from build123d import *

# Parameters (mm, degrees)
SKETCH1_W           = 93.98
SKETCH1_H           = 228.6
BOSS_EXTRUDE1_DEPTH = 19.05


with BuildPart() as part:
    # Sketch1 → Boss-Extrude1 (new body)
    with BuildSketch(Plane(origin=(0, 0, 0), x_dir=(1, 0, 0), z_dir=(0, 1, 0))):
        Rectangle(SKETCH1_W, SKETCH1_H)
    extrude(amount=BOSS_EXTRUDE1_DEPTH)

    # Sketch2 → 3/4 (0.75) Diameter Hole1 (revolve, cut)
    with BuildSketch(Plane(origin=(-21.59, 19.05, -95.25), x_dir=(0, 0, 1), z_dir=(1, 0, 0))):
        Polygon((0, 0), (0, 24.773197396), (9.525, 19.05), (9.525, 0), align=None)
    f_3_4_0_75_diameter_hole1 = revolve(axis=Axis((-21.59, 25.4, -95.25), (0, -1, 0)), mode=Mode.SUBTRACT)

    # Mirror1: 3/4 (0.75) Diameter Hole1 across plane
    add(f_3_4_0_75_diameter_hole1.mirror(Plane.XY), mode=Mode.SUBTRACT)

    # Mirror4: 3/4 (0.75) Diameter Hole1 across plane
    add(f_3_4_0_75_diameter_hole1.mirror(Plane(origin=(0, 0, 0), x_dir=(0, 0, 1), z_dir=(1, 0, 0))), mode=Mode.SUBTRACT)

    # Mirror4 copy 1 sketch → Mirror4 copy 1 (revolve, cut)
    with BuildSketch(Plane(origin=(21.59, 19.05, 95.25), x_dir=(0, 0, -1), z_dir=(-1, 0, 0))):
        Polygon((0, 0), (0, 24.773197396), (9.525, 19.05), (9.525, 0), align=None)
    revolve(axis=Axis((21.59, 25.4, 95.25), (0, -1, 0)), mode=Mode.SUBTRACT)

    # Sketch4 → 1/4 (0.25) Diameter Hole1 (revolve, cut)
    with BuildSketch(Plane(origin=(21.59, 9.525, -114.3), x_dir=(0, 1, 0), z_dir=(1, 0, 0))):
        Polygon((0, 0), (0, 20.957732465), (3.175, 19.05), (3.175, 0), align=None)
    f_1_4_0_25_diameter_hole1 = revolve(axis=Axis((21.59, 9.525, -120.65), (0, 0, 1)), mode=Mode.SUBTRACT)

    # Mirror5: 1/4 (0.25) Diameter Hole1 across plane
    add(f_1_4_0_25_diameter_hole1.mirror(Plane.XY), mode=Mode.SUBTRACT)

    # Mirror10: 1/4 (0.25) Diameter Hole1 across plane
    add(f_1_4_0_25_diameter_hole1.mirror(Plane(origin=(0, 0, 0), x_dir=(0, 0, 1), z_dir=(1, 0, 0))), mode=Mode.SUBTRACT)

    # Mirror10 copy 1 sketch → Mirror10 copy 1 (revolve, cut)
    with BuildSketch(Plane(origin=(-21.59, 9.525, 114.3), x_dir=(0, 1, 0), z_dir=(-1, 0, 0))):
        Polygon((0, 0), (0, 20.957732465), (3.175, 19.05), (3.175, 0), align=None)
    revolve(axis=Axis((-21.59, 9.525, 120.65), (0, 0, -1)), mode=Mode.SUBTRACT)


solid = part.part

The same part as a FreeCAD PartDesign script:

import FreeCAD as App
import Part
import Sketcher
Q = App.Units.Quantity

doc = App.newDocument("Part")
body = doc.addObject("PartDesign::Body", "Body")

# Sketch on XZ plane
sketch1 = body.newObject("Sketcher::SketchObject", "Sketch")
sketch1.AttachmentSupport = (doc.getObject("XZ_Plane"), [""])
sketch1.MapMode = "FlatFace"
sketch1.addGeometry(Part.LineSegment(App.Vector(-47, -114, 0), App.Vector(-47, 114, 0)), False)
sketch1.addGeometry(Part.LineSegment(App.Vector(-47, 114, 0), App.Vector(47, 114, 0)), False)
sketch1.addGeometry(Part.LineSegment(App.Vector(47, 114, 0), App.Vector(47, -114, 0)), False)
sketch1.addGeometry(Part.LineSegment(App.Vector(47, -114, 0), App.Vector(-47, -114, 0)), False)
sketch1.addConstraint(Sketcher.Constraint("Coincident", 0, 2, 1, 1))
sketch1.addConstraint(Sketcher.Constraint("Coincident", 1, 2, 2, 1))
sketch1.addConstraint(Sketcher.Constraint("Coincident", 2, 2, 3, 1))
sketch1.addConstraint(Sketcher.Constraint("Coincident", 3, 2, 0, 1))
sketch1.addConstraint(Sketcher.Constraint("Vertical", 0))
sketch1.addConstraint(Sketcher.Constraint("Horizontal", 1))
sketch1.addConstraint(Sketcher.Constraint("Vertical", 2))
sketch1.addConstraint(Sketcher.Constraint("Horizontal", 3))
sketch1.addConstraint(Sketcher.Constraint("Symmetric", 0, 2, 2, 2, -1, 1))
sketch1.addConstraint(Sketcher.Constraint("DistanceY", 0, 1, 0, 2, Q("9 in")))
sketch1.addConstraint(Sketcher.Constraint("DistanceX", 1, 1, 1, 2, Q("3.7 in")))
pad1 = body.newObject("PartDesign::Pad", "Pad")
pad1.Profile = sketch1
pad1.Length = Q("0.75 in")
pad1.Reversed = True

# Sketch on YZ plane
sketch2 = body.newObject("Sketcher::SketchObject", "Sketch001")
sketch2.AttachmentSupport = (doc.getObject("YZ_Plane"), [""])
sketch2.MapMode = "FlatFace"
sketch2.AttachmentOffset = App.Placement(App.Vector(0, 0, -0.85 * 25.4), App.Rotation())
sketch2.addGeometry(Part.LineSegment(App.Vector(-6, -95, 0), App.Vector(19, -95, 0)), False)
sketch2.addGeometry(Part.LineSegment(App.Vector(19, -95, 0), App.Vector(19, -86, 0)), False)
sketch2.addGeometry(Part.LineSegment(App.Vector(19, -86, 0), App.Vector(0, -86, 0)), False)
sketch2.addGeometry(Part.LineSegment(App.Vector(0, -86, 0), App.Vector(-6, -95, 0)), False)
sketch2.addGeometry(Part.LineSegment(App.Vector(19, -95, 0), App.Vector(-6, -95, 0)), True)  # axis
sketch2.addConstraint(Sketcher.Constraint("Coincident", 0, 2, 1, 1))
sketch2.addConstraint(Sketcher.Constraint("Coincident", 1, 2, 2, 1))
sketch2.addConstraint(Sketcher.Constraint("Coincident", 2, 2, 3, 1))
sketch2.addConstraint(Sketcher.Constraint("Coincident", 3, 2, 0, 1))
sketch2.addConstraint(Sketcher.Constraint("Horizontal", 0))
sketch2.addConstraint(Sketcher.Constraint("Vertical", 1))
sketch2.addConstraint(Sketcher.Constraint("Horizontal", 2))
sketch2.addConstraint(Sketcher.Constraint("Horizontal", 4))
sketch2.addConstraint(Sketcher.Constraint("Coincident", 4, 1, 0, 2))
sketch2.addConstraint(Sketcher.Constraint("PointOnObject", 2, 2, -2))
sketch2.addConstraint(Sketcher.Constraint("Equal", 0, 4))
sketch2.addConstraint(Sketcher.Constraint("Angle", 3, Q("-121 deg")))
sketch2.addConstraint(Sketcher.Constraint("DistanceX", 2, 2, 2, 1, Q("0.75 in")))
sketch2.addConstraint(Sketcher.Constraint("DistanceY", 1, 1, 1, 2, Q("0.375 in")))
sketch2.addConstraint(Sketcher.Constraint("DistanceY", 0, 2, -1, 1, Q("3.75 in")))
groove = body.newObject("PartDesign::Groove", "Groove")
groove.Profile = sketch2
groove.ReferenceAxis = (sketch2, ["Axis0"])
groove.Angle = 360
doc.recompute()

mirrored = body.newObject("PartDesign::Mirrored", "Mirrored")
mirrored.Originals = [groove]
mirrored.MirrorPlane = (doc.getObject("XY_Plane"), [""])
body.Tip = mirrored
doc.recompute()

mirrored2 = body.newObject("PartDesign::Mirrored", "Mirrored001")
mirrored2.Originals = [groove]
mirrored2.MirrorPlane = (doc.getObject("YZ_Plane"), [""])
body.Tip = mirrored2

# Sketch on YZ plane
sketch3 = body.newObject("Sketcher::SketchObject", "Sketch002")
sketch3.AttachmentSupport = (doc.getObject("YZ_Plane"), [""])
sketch3.MapMode = "FlatFace"
sketch3.AttachmentOffset = App.Placement(App.Vector(0, 0, 0.85 * 25.4), App.Rotation())
sketch3.addGeometry(Part.LineSegment(App.Vector(-6, 95, 0), App.Vector(19, 95, 0)), False)
sketch3.addGeometry(Part.LineSegment(App.Vector(19, 95, 0), App.Vector(19, 86, 0)), False)
sketch3.addGeometry(Part.LineSegment(App.Vector(19, 86, 0), App.Vector(0, 86, 0)), False)
sketch3.addGeometry(Part.LineSegment(App.Vector(0, 86, 0), App.Vector(-6, 95, 0)), False)
sketch3.addGeometry(Part.LineSegment(App.Vector(19, 95, 0), App.Vector(-6, 95, 0)), True)  # axis
sketch3.addConstraint(Sketcher.Constraint("Coincident", 0, 2, 1, 1))
sketch3.addConstraint(Sketcher.Constraint("Coincident", 1, 2, 2, 1))
sketch3.addConstraint(Sketcher.Constraint("Coincident", 2, 2, 3, 1))
sketch3.addConstraint(Sketcher.Constraint("Coincident", 3, 2, 0, 1))
sketch3.addConstraint(Sketcher.Constraint("Horizontal", 0))
sketch3.addConstraint(Sketcher.Constraint("Vertical", 1))
sketch3.addConstraint(Sketcher.Constraint("Horizontal", 2))
sketch3.addConstraint(Sketcher.Constraint("Horizontal", 4))
sketch3.addConstraint(Sketcher.Constraint("Coincident", 4, 1, 0, 2))
sketch3.addConstraint(Sketcher.Constraint("PointOnObject", 2, 2, -2))
sketch3.addConstraint(Sketcher.Constraint("Equal", 0, 4))
sketch3.addConstraint(Sketcher.Constraint("Angle", 3, Q("121 deg")))
sketch3.addConstraint(Sketcher.Constraint("DistanceX", 2, 2, 2, 1, Q("0.75 in")))
sketch3.addConstraint(Sketcher.Constraint("DistanceY", 1, 2, 1, 1, Q("0.375 in")))
sketch3.addConstraint(Sketcher.Constraint("DistanceY", -1, 1, 0, 2, Q("3.75 in")))
groove2 = body.newObject("PartDesign::Groove", "Groove001")
groove2.Profile = sketch3
groove2.ReferenceAxis = (sketch3, ["Axis0"])
groove2.Angle = 360

# Sketch on YZ plane
sketch4 = body.newObject("Sketcher::SketchObject", "Sketch003")
sketch4.AttachmentSupport = (doc.getObject("YZ_Plane"), [""])
sketch4.MapMode = "FlatFace"
sketch4.AttachmentOffset = App.Placement(App.Vector(0, 0, 0.85 * 25.4), App.Rotation())
sketch4.addGeometry(Part.LineSegment(App.Vector(9.5, -93.3, 0), App.Vector(9.5, -114.3, 0)), False)
sketch4.addGeometry(Part.LineSegment(App.Vector(9.5, -114.3, 0), App.Vector(12.7, -114.3, 0)), False)
sketch4.addGeometry(Part.LineSegment(App.Vector(12.7, -114.3, 0), App.Vector(12.7, -95.2, 0)), False)
sketch4.addGeometry(Part.LineSegment(App.Vector(12.7, -95.2, 0), App.Vector(9.5, -93.3, 0)), False)
sketch4.addGeometry(Part.LineSegment(App.Vector(9.5, -114.3, 0), App.Vector(9.5, -93.3, 0)), True)  # axis
sketch4.addConstraint(Sketcher.Constraint("Coincident", 0, 2, 1, 1))
sketch4.addConstraint(Sketcher.Constraint("Coincident", 1, 2, 2, 1))
sketch4.addConstraint(Sketcher.Constraint("Coincident", 2, 2, 3, 1))
sketch4.addConstraint(Sketcher.Constraint("Coincident", 3, 2, 0, 1))
sketch4.addConstraint(Sketcher.Constraint("Vertical", 0))
sketch4.addConstraint(Sketcher.Constraint("Horizontal", 1))
sketch4.addConstraint(Sketcher.Constraint("Vertical", 2))
sketch4.addConstraint(Sketcher.Constraint("Vertical", 4))
sketch4.addConstraint(Sketcher.Constraint("Coincident", 4, 1, 0, 2))
sketch4.addConstraint(Sketcher.Constraint("Equal", 0, 4))
sketch4.addConstraint(Sketcher.Constraint("Angle", 3, Q("149 deg")))
sketch4.addConstraint(Sketcher.Constraint("DistanceY", 2, 1, 2, 2, Q("0.75 in")))
sketch4.addConstraint(Sketcher.Constraint("DistanceY", 0, 2, -1, 1, Q("4.5 in")))
sketch4.addConstraint(Sketcher.Constraint("DistanceX", -1, 1, 1, 2, Q("0.5 in")))
sketch4.addConstraint(Sketcher.Constraint("DistanceX", 1, 1, 1, 2, Q("0.125 in")))
groove3 = body.newObject("PartDesign::Groove", "Groove002")
groove3.Profile = sketch4
groove3.ReferenceAxis = (sketch4, ["Axis0"])
groove3.Angle = 360
doc.recompute()

mirrored3 = body.newObject("PartDesign::Mirrored", "Mirrored002")
mirrored3.Originals = [groove3]
mirrored3.MirrorPlane = (doc.getObject("XY_Plane"), [""])
body.Tip = mirrored3
doc.recompute()

mirrored4 = body.newObject("PartDesign::Mirrored", "Mirrored003")
mirrored4.Originals = [groove3]
mirrored4.MirrorPlane = (doc.getObject("YZ_Plane"), [""])
body.Tip = mirrored4

# Sketch on YZ plane
sketch5 = body.newObject("Sketcher::SketchObject", "Sketch004")
sketch5.AttachmentSupport = (doc.getObject("YZ_Plane"), [""])
sketch5.MapMode = "FlatFace"
sketch5.AttachmentOffset = App.Placement(App.Vector(0, 0, -0.85 * 25.4), App.Rotation())
sketch5.addGeometry(Part.LineSegment(App.Vector(9.5, 93.3, 0), App.Vector(9.5, 114.3, 0)), False)
sketch5.addGeometry(Part.LineSegment(App.Vector(9.5, 114.3, 0), App.Vector(12.7, 114.3, 0)), False)
sketch5.addGeometry(Part.LineSegment(App.Vector(12.7, 114.3, 0), App.Vector(12.7, 95.2, 0)), False)
sketch5.addGeometry(Part.LineSegment(App.Vector(12.7, 95.2, 0), App.Vector(9.5, 93.3, 0)), False)
sketch5.addGeometry(Part.LineSegment(App.Vector(9.5, 114.3, 0), App.Vector(9.5, 93.3, 0)), True)  # axis
sketch5.addConstraint(Sketcher.Constraint("Coincident", 0, 2, 1, 1))
sketch5.addConstraint(Sketcher.Constraint("Coincident", 1, 2, 2, 1))
sketch5.addConstraint(Sketcher.Constraint("Coincident", 2, 2, 3, 1))
sketch5.addConstraint(Sketcher.Constraint("Coincident", 3, 2, 0, 1))
sketch5.addConstraint(Sketcher.Constraint("Vertical", 0))
sketch5.addConstraint(Sketcher.Constraint("Horizontal", 1))
sketch5.addConstraint(Sketcher.Constraint("Vertical", 2))
sketch5.addConstraint(Sketcher.Constraint("Vertical", 4))
sketch5.addConstraint(Sketcher.Constraint("Coincident", 4, 1, 0, 2))
sketch5.addConstraint(Sketcher.Constraint("Equal", 0, 4))
sketch5.addConstraint(Sketcher.Constraint("Angle", 3, Q("-149 deg")))
sketch5.addConstraint(Sketcher.Constraint("DistanceY", 2, 2, 2, 1, Q("0.75 in")))
sketch5.addConstraint(Sketcher.Constraint("DistanceY", -1, 1, 0, 2, Q("4.5 in")))
sketch5.addConstraint(Sketcher.Constraint("DistanceX", -1, 1, 1, 2, Q("0.5 in")))
sketch5.addConstraint(Sketcher.Constraint("DistanceX", 1, 1, 1, 2, Q("0.125 in")))
groove4 = body.newObject("PartDesign::Groove", "Groove003")
groove4.Profile = sketch5
groove4.ReferenceAxis = (sketch5, ["Axis0"])
groove4.Angle = 360

doc.recompute()
